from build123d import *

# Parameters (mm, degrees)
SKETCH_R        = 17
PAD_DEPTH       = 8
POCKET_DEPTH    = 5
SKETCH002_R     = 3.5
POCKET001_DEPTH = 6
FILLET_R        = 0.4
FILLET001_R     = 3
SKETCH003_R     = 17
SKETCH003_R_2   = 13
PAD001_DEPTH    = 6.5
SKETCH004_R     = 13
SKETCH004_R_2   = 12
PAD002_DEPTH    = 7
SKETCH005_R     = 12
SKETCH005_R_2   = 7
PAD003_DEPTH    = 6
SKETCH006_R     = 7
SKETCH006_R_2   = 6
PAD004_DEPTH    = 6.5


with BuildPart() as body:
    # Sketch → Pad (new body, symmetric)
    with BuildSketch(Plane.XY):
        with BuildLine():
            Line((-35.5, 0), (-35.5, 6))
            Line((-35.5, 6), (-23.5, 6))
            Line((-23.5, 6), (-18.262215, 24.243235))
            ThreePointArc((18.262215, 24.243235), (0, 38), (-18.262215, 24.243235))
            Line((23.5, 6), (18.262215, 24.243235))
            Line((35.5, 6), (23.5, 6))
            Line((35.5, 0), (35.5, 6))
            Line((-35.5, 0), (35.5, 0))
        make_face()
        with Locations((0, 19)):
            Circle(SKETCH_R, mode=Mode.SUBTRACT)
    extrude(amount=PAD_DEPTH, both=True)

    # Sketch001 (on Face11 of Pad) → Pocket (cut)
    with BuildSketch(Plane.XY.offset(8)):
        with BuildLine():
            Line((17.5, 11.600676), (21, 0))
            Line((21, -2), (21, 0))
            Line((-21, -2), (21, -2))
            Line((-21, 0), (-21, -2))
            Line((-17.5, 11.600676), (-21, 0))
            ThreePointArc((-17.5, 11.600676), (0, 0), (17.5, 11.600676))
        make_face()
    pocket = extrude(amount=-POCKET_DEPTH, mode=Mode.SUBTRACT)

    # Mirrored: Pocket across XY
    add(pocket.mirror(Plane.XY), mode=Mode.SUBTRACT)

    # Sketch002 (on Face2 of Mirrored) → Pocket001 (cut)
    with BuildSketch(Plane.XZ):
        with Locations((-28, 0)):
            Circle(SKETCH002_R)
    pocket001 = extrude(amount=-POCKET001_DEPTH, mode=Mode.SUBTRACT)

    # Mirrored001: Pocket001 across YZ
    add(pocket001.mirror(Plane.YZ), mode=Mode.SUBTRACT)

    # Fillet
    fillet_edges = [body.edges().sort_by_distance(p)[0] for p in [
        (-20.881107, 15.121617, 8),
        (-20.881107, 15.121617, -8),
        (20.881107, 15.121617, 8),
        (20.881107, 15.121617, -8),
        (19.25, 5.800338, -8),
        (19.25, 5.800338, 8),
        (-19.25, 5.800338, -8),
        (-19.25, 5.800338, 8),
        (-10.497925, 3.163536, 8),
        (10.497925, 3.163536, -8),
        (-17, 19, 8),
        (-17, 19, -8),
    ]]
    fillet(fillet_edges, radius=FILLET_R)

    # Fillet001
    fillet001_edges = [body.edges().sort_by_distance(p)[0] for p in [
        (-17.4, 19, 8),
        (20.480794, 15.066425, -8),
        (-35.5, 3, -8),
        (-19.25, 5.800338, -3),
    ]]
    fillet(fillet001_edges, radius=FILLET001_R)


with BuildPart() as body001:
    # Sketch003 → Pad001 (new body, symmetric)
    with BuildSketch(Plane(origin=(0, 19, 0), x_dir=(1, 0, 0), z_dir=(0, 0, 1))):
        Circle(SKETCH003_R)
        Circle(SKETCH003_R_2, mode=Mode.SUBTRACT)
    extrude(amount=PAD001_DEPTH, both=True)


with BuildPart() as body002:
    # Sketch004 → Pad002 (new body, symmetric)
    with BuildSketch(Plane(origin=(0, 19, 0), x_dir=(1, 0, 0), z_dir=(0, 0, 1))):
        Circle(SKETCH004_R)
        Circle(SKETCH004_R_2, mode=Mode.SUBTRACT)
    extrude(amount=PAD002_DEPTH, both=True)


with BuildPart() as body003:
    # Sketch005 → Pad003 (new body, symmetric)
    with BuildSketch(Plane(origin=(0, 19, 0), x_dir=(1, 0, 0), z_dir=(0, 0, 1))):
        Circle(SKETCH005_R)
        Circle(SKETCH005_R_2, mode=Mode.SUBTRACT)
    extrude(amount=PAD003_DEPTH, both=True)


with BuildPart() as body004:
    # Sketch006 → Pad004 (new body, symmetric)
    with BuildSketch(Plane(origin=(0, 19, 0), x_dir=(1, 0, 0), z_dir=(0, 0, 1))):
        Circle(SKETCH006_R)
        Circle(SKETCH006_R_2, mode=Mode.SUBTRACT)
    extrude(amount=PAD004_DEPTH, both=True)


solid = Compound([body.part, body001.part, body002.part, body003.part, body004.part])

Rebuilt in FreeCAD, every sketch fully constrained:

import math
import FreeCAD as App
import Part
import Sketcher
from FreeCAD import Vector
Q = App.Units.Quantity


def edges_at(feature, points):
    """Names of the edges that pass closest to the given points."""
    edges = feature.Shape.Edges
    near = lambda p: min(range(len(edges)), key=lambda i: edges[i].distToShape(Part.Vertex(*p))[0])
    return sorted({f"Edge{near(p) + 1}" for p in points})

doc = App.newDocument("Part")
params = doc.addObject("Spreadsheet::Sheet", "Params")
for row, (alias, value) in enumerate([
    ("sketch1_diameter", "34 mm"),
    ("sketch1_radius", "19 mm"),
    ("sketch1_width", "71 mm"),
    ("sketch1_width2", "12 mm"),
    ("sketch1_height", "6 mm"),
    ("pad1_length", "16 mm"),
    ("sketch2_radius", "19 mm"),
    ("sketch2_width", "42 mm"),
    ("sketch2_height", "2 mm"),
    ("pocket1_length", "5 mm"),
    ("sketch3_diameter", "7 mm"),
    ("pocket2_length", "6 mm"),
    ("fillet_radius", "0.4 mm"),
    ("fillet2_radius", "3 mm"),
    ("sketch4_diameter", "34 mm"),
    ("sketch4_diameter2", "26 mm"),
    ("pad2_length", "13 mm"),
    ("sketch5_diameter", "26 mm"),
    ("sketch5_diameter2", "24 mm"),
    ("pad3_length", "14 mm"),
    ("sketch6_diameter", "24 mm"),
    ("sketch6_diameter2", "14 mm"),
    ("pad4_length", "12 mm"),
    ("sketch7_diameter", "14 mm"),
    ("sketch7_diameter2", "12 mm"),
    ("pad5_length", "13 mm"),
], start=1):
    params.set(f"A{row}", alias)
    params.set(f"B{row}", "=" + value)
    params.setAlias(f"B{row}", alias)

body = doc.addObject("PartDesign::Body", "Body")

# Sketch on XY plane
sketch1 = body.newObject("Sketcher::SketchObject", "Sketch")
sketch1.AttachmentSupport = (doc.getObject("XY_Plane"), [""])
sketch1.MapMode = "FlatFace"
sketch1.addGeometry(Part.LineSegment(Vector(-36, 6, 0), Vector(-36, 0, 0)), False)
sketch1.addGeometry(Part.LineSegment(Vector(-36, 0, 0), Vector(36, 0, 0)), False)
sketch1.addGeometry(Part.LineSegment(Vector(36, 0, 0), Vector(36, 6, 0)), False)
sketch1.addGeometry(Part.LineSegment(Vector(36, 6, 0), Vector(24, 6, 0)), False)
sketch1.addGeometry(Part.LineSegment(Vector(24, 6, 0), Vector(18, 24, 0)), False)
sketch1.addGeometry(Part.ArcOfCircle(Part.Circle(Vector(0, 19, 0), Vector(0, 0, 1), 19), math.radians(16), math.radians(164)), False)
sketch1.addGeometry(Part.LineSegment(Vector(-18, 24, 0), Vector(-24, 6, 0)), False)
sketch1.addGeometry(Part.LineSegment(Vector(-24, 6, 0), Vector(-36, 6, 0)), False)
sketch1.addGeometry(Part.Circle(Vector(0, 19, 0), Vector(0, 0, 1), 17), False)
sketch1.addConstraint(Sketcher.Constraint("Coincident", 0, 2, 1, 1))
sketch1.addConstraint(Sketcher.Constraint("Coincident", 1, 2, 2, 1))
sketch1.addConstraint(Sketcher.Constraint("Coincident", 2, 2, 3, 1))
sketch1.addConstraint(Sketcher.Constraint("Coincident", 3, 2, 4, 1))
sketch1.addConstraint(Sketcher.Constraint("Tangent", 4, 2, 5, 1))
sketch1.addConstraint(Sketcher.Constraint("Tangent", 5, 2, 6, 1))
sketch1.addConstraint(Sketcher.Constraint("Coincident", 6, 2, 7, 1))
sketch1.addConstraint(Sketcher.Constraint("Coincident", 7, 2, 0, 1))
sketch1.addConstraint(Sketcher.Constraint("Vertical", 0))
sketch1.addConstraint(Sketcher.Constraint("Horizontal", 1))
sketch1.addConstraint(Sketcher.Constraint("Vertical", 2))
sketch1.addConstraint(Sketcher.Constraint("Horizontal", 3))
sketch1.addConstraint(Sketcher.Constraint("Horizontal", 7))
sketch1.addConstraint(Sketcher.Constraint("Coincident", 8, 3, 5, 3))
sketch1.addConstraint(Sketcher.Constraint("Symmetric", 0, 2, 1, 2, -1, 1))
sketch1.addConstraint(Sketcher.Constraint("Symmetric", 4, 2, 5, 2, -2))
sketch1.addConstraint(Sketcher.Constraint("Horizontal", 3, 2, 6, 2))
sketch1.addConstraint(Sketcher.Constraint("Diameter", 8, Q("34 mm")))
sketch1.addConstraint(Sketcher.Constraint("Radius", 5, Q("19 mm")))
sketch1.addConstraint(Sketcher.Constraint("DistanceX", 1, 1, 1, 2, Q("71 mm")))
sketch1.addConstraint(Sketcher.Constraint("DistanceX", 3, 2, 3, 1, Q("12 mm")))
sketch1.addConstraint(Sketcher.Constraint("DistanceY", 0, 2, 0, 1, Q("6 mm")))
sketch1.addConstraint(Sketcher.Constraint("DistanceY", -1, 1, 5, 3, Q("19 mm")))
sketch1.setExpression("Constraints[17]", "Params.sketch1_diameter")
sketch1.setExpression("Constraints[18]", "Params.sketch1_radius")
sketch1.setExpression("Constraints[19]", "Params.sketch1_width")
sketch1.setExpression("Constraints[20]", "Params.sketch1_width2")
sketch1.setExpression("Constraints[21]", "Params.sketch1_height")
pad1 = body.newObject("PartDesign::Pad", "Pad")
pad1.Profile = sketch1
pad1.setExpression("Length", "Params.pad1_length")
pad1.Midplane = True

# Sketch on XY plane
sketch2 = body.newObject("Sketcher::SketchObject", "Sketch001")
sketch2.AttachmentSupport = (doc.getObject("XY_Plane"), [""])
sketch2.MapMode = "FlatFace"
sketch2.AttachmentOffset = App.Placement(Vector(0, 0, 8), App.Rotation())
sketch2.addGeometry(Part.LineSegment(Vector(21, 0, 0), Vector(17.5, 11.6, 0)), False)
sketch2.addGeometry(Part.ArcOfCircle(Part.Circle(Vector(0, 19, 0), Vector(0, 0, 1), 19), math.radians(-157), math.radians(-23)), False)
sketch2.addGeometry(Part.LineSegment(Vector(-17.5, 11.6, 0), Vector(-21, 0, 0)), False)
sketch2.addGeometry(Part.LineSegment(Vector(-21, 0, 0), Vector(-21, -2, 0)), False)
sketch2.addGeometry(Part.LineSegment(Vector(-21, -2, 0), Vector(21, -2, 0)), False)
sketch2.addGeometry(Part.LineSegment(Vector(21, -2, 0), Vector(21, 0, 0)), False)
sketch2.addConstraint(Sketcher.Constraint("Coincident", 0, 2, 1, 2))
sketch2.addConstraint(Sketcher.Constraint("Coincident", 1, 1, 2, 1))
sketch2.addConstraint(Sketcher.Constraint("Coincident", 2, 2, 3, 1))
sketch2.addConstraint(Sketcher.Constraint("Coincident", 3, 2, 4, 1))
sketch2.addConstraint(Sketcher.Constraint("Coincident", 4, 2, 5, 1))
sketch2.addConstraint(Sketcher.Constraint("Coincident", 5, 2, 0, 1))
sketch2.addConstraint(Sketcher.Constraint("Vertical", 3))
sketch2.addConstraint(Sketcher.Constraint("Horizontal", 4))
sketch2.addConstraint(Sketcher.Constraint("Vertical", 5))
sketch2.addConstraint(Sketcher.Constraint("Symmetric", 2, 2, 5, 2, -1, 1))
sketch2.addConstraint(Sketcher.Constraint("Symmetric", 0, 2, 1, 1, -2))
sketch2.addConstraint(Sketcher.Constraint("PointOnObject", 2, 2, -1))
sketch2.addConstraint(Sketcher.Constraint("Radius", 1, Q("19 mm")))
sketch2.addConstraint(Sketcher.Constraint("DistanceX", 4, 1, 4, 2, Q("42 mm")))
sketch2.addConstraint(Sketcher.Constraint("DistanceY", 3, 2, 3, 1, Q("2 mm")))
sketch2.addConstraint(Sketcher.Constraint("DistanceY", -1, 1, 1, 3, Q("19 mm")))
sketch2.addConstraint(Sketcher.Constraint("DistanceX", 1, 1, 0, 2, Q("35 mm")))
sketch2.setExpression("Constraints[12]", "Params.sketch2_radius")
sketch2.setExpression("Constraints[13]", "Params.sketch2_width")
sketch2.setExpression("Constraints[14]", "Params.sketch2_height")
pocket1 = body.newObject("PartDesign::Pocket", "Pocket")
pocket1.Profile = sketch2
pocket1.setExpression("Length", "Params.pocket1_length")
doc.recompute()

mirrored = body.newObject("PartDesign::Mirrored", "Mirrored")
mirrored.Originals = [pocket1]
mirrored.MirrorPlane = (doc.getObject("XY_Plane"), [""])
body.Tip = mirrored

# Sketch on XZ plane
sketch3 = body.newObject("Sketcher::SketchObject", "Sketch002")
sketch3.AttachmentSupport = (doc.getObject("XZ_Plane"), [""])
sketch3.MapMode = "FlatFace"
sketch3.addGeometry(Part.Circle(Vector(-28, 0, 0), Vector(0, 0, 1), 3.5), False)
sketch3.addConstraint(Sketcher.Constraint("PointOnObject", 0, 3, -1))
sketch3.addConstraint(Sketcher.Constraint("Diameter", 0, Q("7 mm")))
sketch3.addConstraint(Sketcher.Constraint("DistanceX", 0, 3, -1, 1, Q("28 mm")))
sketch3.setExpression("Constraints[1]", "Params.sketch3_diameter")
pocket2 = body.newObject("PartDesign::Pocket", "Pocket001")
pocket2.Profile = sketch3
pocket2.setExpression("Length", "Params.pocket2_length")
doc.recompute()

mirrored2 = body.newObject("PartDesign::Mirrored", "Mirrored001")
mirrored2.Originals = [pocket2]
mirrored2.MirrorPlane = (doc.getObject("YZ_Plane"), [""])
body.Tip = mirrored2
doc.recompute()

fillet = body.newObject("PartDesign::Fillet", "Fillet")
fillet.Base = (mirrored2, edges_at(mirrored2, [
    (-20.881, 15.122, 8),
    (-20.881, 15.122, -8),
    (20.881, 15.122, 8),
    (20.881, 15.122, -8),
    (19.25, 5.8, -8),
    (19.25, 5.8, 8),
    (-19.25, 5.8, -8),
    (-19.25, 5.8, 8),
    (0, 0, 8),
    (0, 0, -8),
    (-17, 19, 8),
    (-17, 19, -8),
]))
fillet.setExpression("Radius", "Params.fillet_radius")
doc.recompute()

fillet2 = body.newObject("PartDesign::Fillet", "Fillet001")
fillet2.Base = (fillet, edges_at(fillet, [
    (-17.4, 19, 8),
    (20.481, 15.066, -8),
    (-35.5, 3, -8),
    (-19.25, 5.8, -3),
]))
fillet2.setExpression("Radius", "Params.fillet2_radius")
body2 = doc.addObject("PartDesign::Body", "Body001")

# Sketch on XY plane
sketch4 = body2.newObject("Sketcher::SketchObject", "Sketch003")
sketch4.AttachmentSupport = (doc.getObject("XY_Plane001"), [""])
sketch4.MapMode = "FlatFace"
sketch4.addGeometry(Part.Circle(Vector(0, 19, 0), Vector(0, 0, 1), 17), False)
sketch4.addGeometry(Part.Circle(Vector(0, 19, 0), Vector(0, 0, 1), 13), False)
sketch4.addConstraint(Sketcher.Constraint("Coincident", 1, 3, 0, 3))
sketch4.addConstraint(Sketcher.Constraint("PointOnObject", 0, 3, -2))
sketch4.addConstraint(Sketcher.Constraint("Diameter", 0, Q("34 mm")))
sketch4.addConstraint(Sketcher.Constraint("Diameter", 1, Q("26 mm")))
sketch4.addConstraint(Sketcher.Constraint("DistanceY", -1, 1, 0, 3, Q("19 mm")))
sketch4.setExpression("Constraints[2]", "Params.sketch4_diameter")
sketch4.setExpression("Constraints[3]", "Params.sketch4_diameter2")
pad2 = body2.newObject("PartDesign::Pad", "Pad001")
pad2.Profile = sketch4
pad2.setExpression("Length", "Params.pad2_length")
pad2.Midplane = True
body3 = doc.addObject("PartDesign::Body", "Body002")

# Sketch on XY plane
sketch5 = body3.newObject("Sketcher::SketchObject", "Sketch004")
sketch5.AttachmentSupport = (doc.getObject("XY_Plane002"), [""])
sketch5.MapMode = "FlatFace"
sketch5.addGeometry(Part.Circle(Vector(0, 19, 0), Vector(0, 0, 1), 13), False)
sketch5.addGeometry(Part.Circle(Vector(0, 19, 0), Vector(0, 0, 1), 12), False)
sketch5.addConstraint(Sketcher.Constraint("Coincident", 1, 3, 0, 3))
sketch5.addConstraint(Sketcher.Constraint("PointOnObject", 0, 3, -2))
sketch5.addConstraint(Sketcher.Constraint("Diameter", 0, Q("26 mm")))
sketch5.addConstraint(Sketcher.Constraint("Diameter", 1, Q("24 mm")))
sketch5.addConstraint(Sketcher.Constraint("DistanceY", -1, 1, 0, 3, Q("19 mm")))
sketch5.setExpression("Constraints[2]", "Params.sketch5_diameter")
sketch5.setExpression("Constraints[3]", "Params.sketch5_diameter2")
pad3 = body3.newObject("PartDesign::Pad", "Pad002")
pad3.Profile = sketch5
pad3.setExpression("Length", "Params.pad3_length")
pad3.Midplane = True
body4 = doc.addObject("PartDesign::Body", "Body003")

# Sketch on XY plane
sketch6 = body4.newObject("Sketcher::SketchObject", "Sketch005")
sketch6.AttachmentSupport = (doc.getObject("XY_Plane003"), [""])
sketch6.MapMode = "FlatFace"
sketch6.addGeometry(Part.Circle(Vector(0, 19, 0), Vector(0, 0, 1), 12), False)
sketch6.addGeometry(Part.Circle(Vector(0, 19, 0), Vector(0, 0, 1), 7), False)
sketch6.addConstraint(Sketcher.Constraint("Coincident", 1, 3, 0, 3))
sketch6.addConstraint(Sketcher.Constraint("PointOnObject", 0, 3, -2))
sketch6.addConstraint(Sketcher.Constraint("Diameter", 0, Q("24 mm")))
sketch6.addConstraint(Sketcher.Constraint("Diameter", 1, Q("14 mm")))
sketch6.addConstraint(Sketcher.Constraint("DistanceY", -1, 1, 0, 3, Q("19 mm")))
sketch6.setExpression("Constraints[2]", "Params.sketch6_diameter")
sketch6.setExpression("Constraints[3]", "Params.sketch6_diameter2")
pad4 = body4.newObject("PartDesign::Pad", "Pad003")
pad4.Profile = sketch6
pad4.setExpression("Length", "Params.pad4_length")
pad4.Midplane = True
body5 = doc.addObject("PartDesign::Body", "Body004")

# Sketch on XY plane
sketch7 = body5.newObject("Sketcher::SketchObject", "Sketch006")
sketch7.AttachmentSupport = (doc.getObject("XY_Plane004"), [""])
sketch7.MapMode = "FlatFace"
sketch7.addGeometry(Part.Circle(Vector(0, 19, 0), Vector(0, 0, 1), 7), False)
sketch7.addGeometry(Part.Circle(Vector(0, 19, 0), Vector(0, 0, 1), 6), False)
sketch7.addConstraint(Sketcher.Constraint("Coincident", 1, 3, 0, 3))
sketch7.addConstraint(Sketcher.Constraint("PointOnObject", 0, 3, -2))
sketch7.addConstraint(Sketcher.Constraint("Diameter", 0, Q("14 mm")))
sketch7.addConstraint(Sketcher.Constraint("Diameter", 1, Q("12 mm")))
sketch7.addConstraint(Sketcher.Constraint("DistanceY", -1, 1, 0, 3, Q("19 mm")))
sketch7.setExpression("Constraints[2]", "Params.sketch7_diameter")
sketch7.setExpression("Constraints[3]", "Params.sketch7_diameter2")
pad5 = body5.newObject("PartDesign::Pad", "Pad004")
pad5.Profile = sketch7
pad5.setExpression("Length", "Params.pad5_length")
pad5.Midplane = True

doc.recompute()
